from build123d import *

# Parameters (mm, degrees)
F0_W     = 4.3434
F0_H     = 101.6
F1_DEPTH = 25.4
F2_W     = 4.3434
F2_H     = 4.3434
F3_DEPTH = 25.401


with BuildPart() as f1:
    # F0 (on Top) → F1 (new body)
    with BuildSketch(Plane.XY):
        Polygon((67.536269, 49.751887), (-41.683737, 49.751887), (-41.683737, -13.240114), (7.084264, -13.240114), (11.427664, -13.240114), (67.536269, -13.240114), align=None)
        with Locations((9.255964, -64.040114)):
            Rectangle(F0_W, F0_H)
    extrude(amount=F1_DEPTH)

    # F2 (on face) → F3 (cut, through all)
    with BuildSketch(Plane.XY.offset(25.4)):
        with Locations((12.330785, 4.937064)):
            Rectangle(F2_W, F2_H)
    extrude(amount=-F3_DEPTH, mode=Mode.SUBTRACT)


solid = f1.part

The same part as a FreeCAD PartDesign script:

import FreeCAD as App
import Part
import Sketcher

V = App.Vector
Q = App.Units.Quantity


def add_polygon(sketch, points):
    """Adds a closed chain of lines whose ends are joined by coincident constraints."""
    first, n = sketch.GeometryCount, len(points)
    for a, b in zip(points, points[1:] + points[:1]):
        sketch.addGeometry(Part.LineSegment(App.Vector(*a, 0), App.Vector(*b, 0)), False)
    for i in range(n):
        sketch.addConstraint(Sketcher.Constraint("Coincident", first + i, 2, first + (i + 1) % n, 1))

doc = App.newDocument("Part")
body = doc.addObject("PartDesign::Body", "Body")

sketch1 = body.newObject("Sketcher::SketchObject", "Sketch")
sketch1.AttachmentSupport = (doc.getObject("XY_Plane"), [""])
sketch1.MapMode = "FlatFace"
add_polygon(sketch1, [(67.5, 49.8), (-41.7, 49.8), (-41.7, -13.2), (7.1, -13.2), (7.1, -114.8), (11.4, -114.8), (11.4, -13.2), (67.5, -13.2)])
sketch1.addConstraint([
    Sketcher.Constraint("Horizontal", 0),
    Sketcher.Constraint("Vertical", 1),
    Sketcher.Constraint("Horizontal", 2),
    Sketcher.Constraint("Vertical", 3),
    Sketcher.Constraint("Horizontal", 4),
    Sketcher.Constraint("Vertical", 5),
    Sketcher.Constraint("Horizontal", 6),
    Sketcher.Constraint("Vertical", 7),
    Sketcher.Constraint("Horizontal", 2, 2, 5, 2),
    Sketcher.Constraint("DistanceY", 3, 2, 3, 1, Q("4 in")),
    Sketcher.Constraint("DistanceX", 2, 1, 2, 2, Q("1.92 in")),
    Sketcher.Constraint("DistanceY", 1, 2, 1, 1, Q("2.48 in")),
    Sketcher.Constraint("DistanceX", 4, 1, 4, 2, Q("0.171 in")),
    Sketcher.Constraint("DistanceX", 6, 1, 6, 2, Q("2.2090002 in")),
    Sketcher.Constraint("DistanceX", -1, 1, 6, 2, 67.536269),
    Sketcher.Constraint("DistanceY", -1, 1, 0, 2, 49.751887),
])
pad1 = body.newObject("PartDesign::Pad", "Pad")
pad1.Profile = sketch1
pad1.Length = Q("1 in")

sketch2 = body.newObject("Sketcher::SketchObject", "Sketch001")
sketch2.AttachmentSupport = (doc.getObject("XY_Plane"), [""])
sketch2.MapMode = "FlatFace"
sketch2.AttachmentOffset = App.Placement(V(0, 0, 1 * 25.4), App.Rotation())
add_polygon(sketch2, [(10.2, 7.1), (10.2, 2.8), (14.5, 2.8), (14.5, 7.1)])
sketch2.addConstraint([
    Sketcher.Constraint("Vertical", 0),
    Sketcher.Constraint("Horizontal", 1),
    Sketcher.Constraint("Vertical", 2),
    Sketcher.Constraint("Horizontal", 3),
    Sketcher.Constraint("Equal", 3, 0),
    Sketcher.Constraint("DistanceX", 1, 1, 1, 2, Q("0.171 in")),
    Sketcher.Constraint("DistanceX", -1, 1, 0, 2, 10.159085),
    Sketcher.Constraint("DistanceY", -1, 1, 0, 2, 2.765364),
])
pocket1 = body.newObject("PartDesign::Pocket", "Pocket")
pocket1.Profile = sketch2
pocket1.Type = "ThroughAll"

doc.recompute()
